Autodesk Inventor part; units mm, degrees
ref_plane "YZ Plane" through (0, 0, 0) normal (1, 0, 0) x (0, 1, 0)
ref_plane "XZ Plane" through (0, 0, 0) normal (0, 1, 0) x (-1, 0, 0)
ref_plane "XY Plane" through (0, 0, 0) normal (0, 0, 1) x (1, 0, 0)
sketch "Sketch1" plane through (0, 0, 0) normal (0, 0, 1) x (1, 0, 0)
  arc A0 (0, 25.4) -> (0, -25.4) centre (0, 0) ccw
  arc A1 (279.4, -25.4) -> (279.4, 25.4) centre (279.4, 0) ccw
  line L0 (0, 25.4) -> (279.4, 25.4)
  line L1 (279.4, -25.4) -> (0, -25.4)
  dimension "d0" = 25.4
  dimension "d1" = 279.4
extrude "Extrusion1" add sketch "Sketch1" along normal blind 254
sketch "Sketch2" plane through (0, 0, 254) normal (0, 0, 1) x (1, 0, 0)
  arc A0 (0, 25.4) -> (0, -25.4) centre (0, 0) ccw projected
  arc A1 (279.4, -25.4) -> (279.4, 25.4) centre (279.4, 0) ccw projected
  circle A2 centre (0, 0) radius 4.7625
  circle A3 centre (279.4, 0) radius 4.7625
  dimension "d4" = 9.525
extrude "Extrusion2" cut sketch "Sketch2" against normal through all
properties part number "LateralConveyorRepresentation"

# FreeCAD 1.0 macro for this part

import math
import FreeCAD as App
import Part
import Sketcher
Q = App.Units.Quantity

doc = App.newDocument("Part")
body = doc.addObject("PartDesign::Body", "Body")

# Sketch on XY plane
sketch1 = body.newObject("Sketcher::SketchObject", "Sketch")
sketch1.AttachmentSupport = (doc.getObject("XY_Plane"), [""])
sketch1.MapMode = "FlatFace"
sketch1.addGeometry([
    Part.LineSegment(App.Vector(279, 25, 0), App.Vector(0, 25, 0)),
    Part.ArcOfCircle(Part.Circle(App.Vector(0, 0, 0), App.Vector(0, 0, 1), 25), math.radians(90), math.radians(270)),
    Part.LineSegment(App.Vector(0, -25, 0), App.Vector(279, -25, 0)),
    Part.ArcOfCircle(Part.Circle(App.Vector(279, 0, 0), App.Vector(0, 0, 1), 25), math.radians(-90), math.radians(90)),
], False)
sketch1.addConstraint([
    Sketcher.Constraint("Tangent", 0, 2, 1, 1),
    Sketcher.Constraint("Tangent", 1, 2, 2, 1),
    Sketcher.Constraint("Tangent", 2, 2, 3, 1),
    Sketcher.Constraint("Tangent", 3, 2, 0, 1),
    Sketcher.Constraint("Horizontal", 0),
    Sketcher.Constraint("Horizontal", 2),
    Sketcher.Constraint("Coincident", 1, 3, -1, 1),
    Sketcher.Constraint("Radius", 1, Q("1 in")),
    Sketcher.Constraint("DistanceX", 0, 2, 0, 1, Q("11 in")),
])
pad1 = body.newObject("PartDesign::Pad", "Pad")
pad1.Profile = sketch1
pad1.Length = Q("10 in")

# Sketch on XY plane
sketch2 = body.newObject("Sketcher::SketchObject", "Sketch001")
sketch2.AttachmentSupport = (doc.getObject("XY_Plane"), [""])
sketch2.MapMode = "FlatFace"
sketch2.AttachmentOffset = App.Placement(App.Vector(0, 0, 10 * 25.4), App.Rotation())
sketch2.addGeometry([
    Part.Circle(App.Vector(0, 0, 0), App.Vector(0, 0, 1), 4.8),
    Part.Circle(App.Vector(279.4, 0, 0), App.Vector(0, 0, 1), 4.8),
], False)
sketch2.addConstraint([
    Sketcher.Constraint("Coincident", 0, 3, -1, 1),
    Sketcher.Constraint("Equal", 0, 1),
    Sketcher.Constraint("PointOnObject", 1, 3, -1),
    Sketcher.Constraint("Diameter", 0, Q("0.375 in")),
    Sketcher.Constraint("DistanceX", -1, 1, 1, 3, Q("11 in")),
])
pocket1 = body.newObject("PartDesign::Pocket", "Pocket")
pocket1.Profile = sketch2
pocket1.Type = "ThroughAll"

doc.recompute()
